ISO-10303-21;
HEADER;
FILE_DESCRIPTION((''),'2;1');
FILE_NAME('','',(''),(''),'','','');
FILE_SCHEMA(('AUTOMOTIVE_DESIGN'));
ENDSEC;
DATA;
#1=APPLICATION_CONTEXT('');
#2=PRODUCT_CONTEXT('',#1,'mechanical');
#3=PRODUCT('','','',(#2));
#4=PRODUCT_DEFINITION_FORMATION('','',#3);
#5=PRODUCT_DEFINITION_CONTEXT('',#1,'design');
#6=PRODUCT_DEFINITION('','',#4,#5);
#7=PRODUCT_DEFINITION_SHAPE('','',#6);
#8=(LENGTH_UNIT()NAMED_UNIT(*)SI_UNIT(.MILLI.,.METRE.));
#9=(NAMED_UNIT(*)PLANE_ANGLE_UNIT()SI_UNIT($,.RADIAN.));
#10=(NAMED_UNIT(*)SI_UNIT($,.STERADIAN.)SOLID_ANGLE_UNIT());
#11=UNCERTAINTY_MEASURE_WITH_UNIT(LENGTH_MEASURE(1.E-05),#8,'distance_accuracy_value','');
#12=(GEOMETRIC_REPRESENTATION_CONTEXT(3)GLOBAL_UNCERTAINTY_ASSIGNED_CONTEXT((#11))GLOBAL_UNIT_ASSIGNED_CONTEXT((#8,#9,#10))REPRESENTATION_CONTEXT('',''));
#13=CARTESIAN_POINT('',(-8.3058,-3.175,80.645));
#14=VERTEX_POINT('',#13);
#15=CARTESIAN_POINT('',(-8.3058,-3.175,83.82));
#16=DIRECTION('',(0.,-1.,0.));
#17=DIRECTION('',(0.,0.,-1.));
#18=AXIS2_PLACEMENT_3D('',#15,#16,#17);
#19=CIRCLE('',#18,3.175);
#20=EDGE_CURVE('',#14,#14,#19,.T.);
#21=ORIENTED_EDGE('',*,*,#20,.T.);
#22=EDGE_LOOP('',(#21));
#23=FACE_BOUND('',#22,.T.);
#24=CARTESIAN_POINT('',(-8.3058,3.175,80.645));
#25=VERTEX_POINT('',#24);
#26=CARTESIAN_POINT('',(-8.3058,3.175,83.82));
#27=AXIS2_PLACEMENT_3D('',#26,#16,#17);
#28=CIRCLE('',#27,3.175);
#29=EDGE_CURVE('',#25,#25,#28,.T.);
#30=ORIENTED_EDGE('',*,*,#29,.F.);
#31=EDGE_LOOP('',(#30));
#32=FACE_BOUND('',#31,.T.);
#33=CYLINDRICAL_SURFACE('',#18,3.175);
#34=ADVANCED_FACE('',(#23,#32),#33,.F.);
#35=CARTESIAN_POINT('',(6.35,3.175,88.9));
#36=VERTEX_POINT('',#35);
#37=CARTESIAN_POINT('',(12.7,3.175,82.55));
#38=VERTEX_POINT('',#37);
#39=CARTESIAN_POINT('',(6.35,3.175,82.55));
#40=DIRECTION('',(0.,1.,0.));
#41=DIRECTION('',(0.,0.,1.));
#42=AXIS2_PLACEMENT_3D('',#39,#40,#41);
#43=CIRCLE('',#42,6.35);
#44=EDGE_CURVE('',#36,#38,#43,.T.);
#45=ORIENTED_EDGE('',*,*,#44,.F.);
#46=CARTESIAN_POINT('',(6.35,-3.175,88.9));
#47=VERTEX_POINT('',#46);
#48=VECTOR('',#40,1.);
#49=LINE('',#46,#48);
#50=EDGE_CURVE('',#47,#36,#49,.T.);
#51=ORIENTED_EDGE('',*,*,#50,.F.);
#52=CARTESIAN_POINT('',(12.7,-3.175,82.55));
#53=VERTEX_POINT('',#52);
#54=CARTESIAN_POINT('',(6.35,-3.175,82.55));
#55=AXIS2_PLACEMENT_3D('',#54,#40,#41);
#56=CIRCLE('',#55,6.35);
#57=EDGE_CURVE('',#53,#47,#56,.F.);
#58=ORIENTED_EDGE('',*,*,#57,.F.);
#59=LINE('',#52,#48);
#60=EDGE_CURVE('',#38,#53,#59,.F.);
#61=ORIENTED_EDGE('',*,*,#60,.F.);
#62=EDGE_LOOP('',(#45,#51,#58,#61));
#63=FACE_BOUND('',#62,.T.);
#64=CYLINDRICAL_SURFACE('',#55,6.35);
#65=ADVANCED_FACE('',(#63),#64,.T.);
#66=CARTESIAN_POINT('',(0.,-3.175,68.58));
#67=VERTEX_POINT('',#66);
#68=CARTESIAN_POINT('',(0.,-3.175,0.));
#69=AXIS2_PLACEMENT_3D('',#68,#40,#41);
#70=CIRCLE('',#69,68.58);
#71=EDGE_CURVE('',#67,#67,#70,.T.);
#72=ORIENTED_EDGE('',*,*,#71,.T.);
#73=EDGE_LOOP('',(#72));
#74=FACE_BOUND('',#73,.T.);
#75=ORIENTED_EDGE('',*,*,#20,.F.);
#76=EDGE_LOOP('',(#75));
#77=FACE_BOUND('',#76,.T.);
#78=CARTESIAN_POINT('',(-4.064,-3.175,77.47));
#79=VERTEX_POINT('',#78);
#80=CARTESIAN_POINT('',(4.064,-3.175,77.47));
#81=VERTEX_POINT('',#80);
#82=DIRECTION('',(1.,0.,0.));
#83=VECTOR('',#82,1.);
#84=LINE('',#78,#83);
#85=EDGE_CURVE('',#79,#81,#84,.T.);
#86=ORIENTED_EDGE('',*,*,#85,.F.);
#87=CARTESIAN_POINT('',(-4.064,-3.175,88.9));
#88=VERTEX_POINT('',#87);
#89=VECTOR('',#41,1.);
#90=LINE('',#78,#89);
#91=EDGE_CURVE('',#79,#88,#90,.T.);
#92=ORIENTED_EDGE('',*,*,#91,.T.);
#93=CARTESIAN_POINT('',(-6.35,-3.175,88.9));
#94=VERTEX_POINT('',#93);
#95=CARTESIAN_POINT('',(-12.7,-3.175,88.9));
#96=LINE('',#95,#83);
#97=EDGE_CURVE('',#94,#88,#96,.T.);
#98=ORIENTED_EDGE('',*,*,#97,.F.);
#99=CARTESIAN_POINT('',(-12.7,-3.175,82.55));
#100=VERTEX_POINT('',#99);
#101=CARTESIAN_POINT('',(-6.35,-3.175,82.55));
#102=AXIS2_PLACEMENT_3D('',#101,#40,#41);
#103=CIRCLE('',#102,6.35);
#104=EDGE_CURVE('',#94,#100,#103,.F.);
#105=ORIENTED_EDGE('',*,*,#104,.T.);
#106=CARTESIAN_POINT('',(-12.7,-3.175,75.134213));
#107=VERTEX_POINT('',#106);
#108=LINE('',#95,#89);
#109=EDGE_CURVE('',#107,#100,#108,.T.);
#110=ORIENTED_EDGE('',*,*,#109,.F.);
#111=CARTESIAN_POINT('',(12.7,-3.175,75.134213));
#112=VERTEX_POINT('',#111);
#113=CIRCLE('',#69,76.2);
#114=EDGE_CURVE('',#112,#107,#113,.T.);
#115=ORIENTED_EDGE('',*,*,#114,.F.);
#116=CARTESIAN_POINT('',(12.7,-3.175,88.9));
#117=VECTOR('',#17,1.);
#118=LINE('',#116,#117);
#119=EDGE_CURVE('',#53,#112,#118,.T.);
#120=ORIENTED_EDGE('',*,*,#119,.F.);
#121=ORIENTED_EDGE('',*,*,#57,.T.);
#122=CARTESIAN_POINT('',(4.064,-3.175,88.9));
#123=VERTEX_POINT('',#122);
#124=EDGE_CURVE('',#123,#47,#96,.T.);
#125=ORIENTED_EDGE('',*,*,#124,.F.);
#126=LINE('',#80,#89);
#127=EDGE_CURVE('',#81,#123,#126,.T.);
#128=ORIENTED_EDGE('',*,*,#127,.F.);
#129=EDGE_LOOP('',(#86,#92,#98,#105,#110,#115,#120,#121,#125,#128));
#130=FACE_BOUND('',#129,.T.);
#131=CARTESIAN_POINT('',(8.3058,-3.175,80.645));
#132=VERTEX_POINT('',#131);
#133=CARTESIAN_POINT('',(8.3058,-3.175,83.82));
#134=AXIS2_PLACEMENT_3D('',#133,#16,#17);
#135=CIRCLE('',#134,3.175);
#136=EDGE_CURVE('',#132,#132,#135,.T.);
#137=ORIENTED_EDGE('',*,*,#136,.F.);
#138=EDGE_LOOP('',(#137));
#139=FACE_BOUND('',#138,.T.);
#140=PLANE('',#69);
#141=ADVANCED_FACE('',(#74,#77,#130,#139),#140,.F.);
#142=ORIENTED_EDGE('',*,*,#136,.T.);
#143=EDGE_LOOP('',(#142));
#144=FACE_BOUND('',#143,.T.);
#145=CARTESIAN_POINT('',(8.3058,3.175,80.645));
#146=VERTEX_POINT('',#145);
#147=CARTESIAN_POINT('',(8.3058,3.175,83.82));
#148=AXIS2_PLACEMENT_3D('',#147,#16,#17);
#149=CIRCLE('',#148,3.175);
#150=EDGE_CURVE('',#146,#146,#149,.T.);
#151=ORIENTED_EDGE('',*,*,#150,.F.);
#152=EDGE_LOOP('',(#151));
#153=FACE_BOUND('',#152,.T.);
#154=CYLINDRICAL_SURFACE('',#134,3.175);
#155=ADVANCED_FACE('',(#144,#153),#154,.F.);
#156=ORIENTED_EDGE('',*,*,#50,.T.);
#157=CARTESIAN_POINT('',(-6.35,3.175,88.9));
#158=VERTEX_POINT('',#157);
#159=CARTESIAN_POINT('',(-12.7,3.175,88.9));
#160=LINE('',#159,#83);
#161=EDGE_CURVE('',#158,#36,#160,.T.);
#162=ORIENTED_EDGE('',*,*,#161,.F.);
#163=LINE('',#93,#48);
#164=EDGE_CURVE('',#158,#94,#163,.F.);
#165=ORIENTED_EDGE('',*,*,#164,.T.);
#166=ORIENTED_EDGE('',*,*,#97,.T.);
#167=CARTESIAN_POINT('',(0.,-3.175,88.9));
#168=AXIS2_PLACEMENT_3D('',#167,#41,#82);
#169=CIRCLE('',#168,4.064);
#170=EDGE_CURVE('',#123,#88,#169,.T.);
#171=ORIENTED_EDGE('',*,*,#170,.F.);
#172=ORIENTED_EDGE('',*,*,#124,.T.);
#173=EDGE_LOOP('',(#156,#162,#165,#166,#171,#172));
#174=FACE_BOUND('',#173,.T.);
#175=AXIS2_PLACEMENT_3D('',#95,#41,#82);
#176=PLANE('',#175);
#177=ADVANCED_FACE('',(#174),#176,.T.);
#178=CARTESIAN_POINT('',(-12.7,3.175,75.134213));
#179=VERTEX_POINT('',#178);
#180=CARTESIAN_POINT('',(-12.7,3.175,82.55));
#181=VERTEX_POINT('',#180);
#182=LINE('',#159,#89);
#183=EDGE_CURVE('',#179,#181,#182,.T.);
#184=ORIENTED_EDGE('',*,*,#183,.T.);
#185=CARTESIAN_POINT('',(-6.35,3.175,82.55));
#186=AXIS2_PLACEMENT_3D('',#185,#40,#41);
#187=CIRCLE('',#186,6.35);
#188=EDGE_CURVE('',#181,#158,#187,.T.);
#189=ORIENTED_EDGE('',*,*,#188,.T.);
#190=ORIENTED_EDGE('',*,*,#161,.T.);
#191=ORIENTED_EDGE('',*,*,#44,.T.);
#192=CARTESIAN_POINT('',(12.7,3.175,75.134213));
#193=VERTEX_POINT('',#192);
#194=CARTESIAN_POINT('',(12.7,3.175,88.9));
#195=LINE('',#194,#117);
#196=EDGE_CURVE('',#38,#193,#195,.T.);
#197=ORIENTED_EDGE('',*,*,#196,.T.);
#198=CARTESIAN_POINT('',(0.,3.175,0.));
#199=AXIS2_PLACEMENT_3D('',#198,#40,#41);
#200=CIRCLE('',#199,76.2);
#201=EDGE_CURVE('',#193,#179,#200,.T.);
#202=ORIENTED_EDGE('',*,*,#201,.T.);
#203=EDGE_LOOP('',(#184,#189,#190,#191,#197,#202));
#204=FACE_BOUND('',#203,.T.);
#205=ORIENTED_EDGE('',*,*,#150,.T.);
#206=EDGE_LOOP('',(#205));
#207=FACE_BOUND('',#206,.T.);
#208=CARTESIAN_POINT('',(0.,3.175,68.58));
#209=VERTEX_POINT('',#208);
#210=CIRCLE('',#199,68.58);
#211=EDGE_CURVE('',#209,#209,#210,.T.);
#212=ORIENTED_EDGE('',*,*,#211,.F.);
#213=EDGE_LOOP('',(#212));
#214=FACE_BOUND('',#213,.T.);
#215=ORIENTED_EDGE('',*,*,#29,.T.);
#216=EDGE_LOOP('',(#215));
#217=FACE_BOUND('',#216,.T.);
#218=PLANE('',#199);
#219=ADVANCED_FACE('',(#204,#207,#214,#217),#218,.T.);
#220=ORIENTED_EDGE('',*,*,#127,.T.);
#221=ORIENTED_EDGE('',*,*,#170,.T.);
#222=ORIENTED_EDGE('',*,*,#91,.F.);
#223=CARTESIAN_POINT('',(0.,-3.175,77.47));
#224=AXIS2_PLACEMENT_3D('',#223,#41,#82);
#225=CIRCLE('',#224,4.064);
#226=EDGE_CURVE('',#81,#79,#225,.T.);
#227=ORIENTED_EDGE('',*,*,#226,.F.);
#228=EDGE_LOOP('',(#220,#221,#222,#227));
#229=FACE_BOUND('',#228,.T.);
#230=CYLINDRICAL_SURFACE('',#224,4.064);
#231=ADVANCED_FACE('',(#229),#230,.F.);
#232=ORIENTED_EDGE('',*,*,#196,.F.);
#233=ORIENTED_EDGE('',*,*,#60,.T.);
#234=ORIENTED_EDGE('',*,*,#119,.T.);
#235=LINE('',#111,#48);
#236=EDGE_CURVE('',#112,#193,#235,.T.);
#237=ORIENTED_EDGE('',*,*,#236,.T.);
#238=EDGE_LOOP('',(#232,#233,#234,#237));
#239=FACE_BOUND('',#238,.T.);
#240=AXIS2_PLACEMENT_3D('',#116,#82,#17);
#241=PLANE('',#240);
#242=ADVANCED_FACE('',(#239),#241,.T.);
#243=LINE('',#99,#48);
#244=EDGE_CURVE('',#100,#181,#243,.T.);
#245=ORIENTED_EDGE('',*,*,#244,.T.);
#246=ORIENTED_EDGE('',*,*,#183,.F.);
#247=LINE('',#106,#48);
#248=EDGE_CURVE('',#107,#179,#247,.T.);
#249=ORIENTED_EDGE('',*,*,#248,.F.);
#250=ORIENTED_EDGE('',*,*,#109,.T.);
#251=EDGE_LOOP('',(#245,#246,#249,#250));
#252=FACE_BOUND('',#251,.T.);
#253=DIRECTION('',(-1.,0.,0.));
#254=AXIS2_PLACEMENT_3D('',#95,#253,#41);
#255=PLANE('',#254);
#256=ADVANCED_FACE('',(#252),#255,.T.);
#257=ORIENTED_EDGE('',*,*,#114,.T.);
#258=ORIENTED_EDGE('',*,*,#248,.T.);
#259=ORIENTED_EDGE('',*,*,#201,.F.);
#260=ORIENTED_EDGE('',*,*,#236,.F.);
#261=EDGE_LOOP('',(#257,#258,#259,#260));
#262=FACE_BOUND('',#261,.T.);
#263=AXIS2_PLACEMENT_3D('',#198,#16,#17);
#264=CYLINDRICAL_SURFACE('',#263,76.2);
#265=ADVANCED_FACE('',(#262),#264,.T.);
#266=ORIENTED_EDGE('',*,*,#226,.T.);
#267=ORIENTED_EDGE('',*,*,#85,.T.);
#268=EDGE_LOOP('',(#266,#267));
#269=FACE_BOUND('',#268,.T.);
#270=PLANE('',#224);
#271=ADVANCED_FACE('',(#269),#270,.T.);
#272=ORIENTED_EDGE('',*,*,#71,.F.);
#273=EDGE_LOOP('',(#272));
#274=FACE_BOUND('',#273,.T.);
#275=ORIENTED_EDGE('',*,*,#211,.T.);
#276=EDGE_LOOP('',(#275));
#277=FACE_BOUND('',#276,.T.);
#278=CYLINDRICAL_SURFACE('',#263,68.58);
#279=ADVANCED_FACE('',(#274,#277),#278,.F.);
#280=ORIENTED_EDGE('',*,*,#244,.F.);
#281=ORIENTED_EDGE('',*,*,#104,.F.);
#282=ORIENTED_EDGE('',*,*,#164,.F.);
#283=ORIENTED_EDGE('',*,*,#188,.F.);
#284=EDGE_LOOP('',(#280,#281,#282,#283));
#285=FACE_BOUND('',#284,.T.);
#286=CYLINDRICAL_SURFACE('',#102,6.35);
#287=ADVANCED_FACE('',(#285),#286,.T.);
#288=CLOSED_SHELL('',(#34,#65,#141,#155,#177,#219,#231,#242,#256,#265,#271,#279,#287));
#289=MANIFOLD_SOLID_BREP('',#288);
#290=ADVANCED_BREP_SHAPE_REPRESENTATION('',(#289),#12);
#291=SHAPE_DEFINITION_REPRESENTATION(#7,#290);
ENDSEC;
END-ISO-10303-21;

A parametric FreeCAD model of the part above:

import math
import FreeCAD as App
import Part
import Sketcher
Q = App.Units.Quantity


def edges_at(feature, points):
    """Names of the edges that pass closest to the given points."""
    edges = feature.Shape.Edges
    near = lambda p: min(range(len(edges)), key=lambda i: edges[i].distToShape(Part.Vertex(*p))[0])
    return sorted({f"Edge{near(p) + 1}" for p in points})

doc = App.newDocument("Part")
body = doc.addObject("PartDesign::Body", "Body")

# Sketch on XZ plane
sketch1 = body.newObject("Sketcher::SketchObject", "Sketch")
sketch1.AttachmentSupport = (doc.getObject("XZ_Plane"), [""])
sketch1.MapMode = "FlatFace"
sketch1.addGeometry([
    Part.Circle(App.Vector(0, 0, 0), App.Vector(0, 0, 1), 76),
    Part.Circle(App.Vector(0, 0, 0), App.Vector(0, 0, 1), 69),
], False)
sketch1.addConstraint([
    Sketcher.Constraint("Coincident", 0, 3, -1, 1),
    Sketcher.Constraint("Coincident", 1, 3, -1, 1),
    Sketcher.Constraint("Diameter", 0, Q("6 in")),
    Sketcher.Constraint("Diameter", 1, Q("5.4 in")),
])
pad1 = body.newObject("PartDesign::Pad", "Pad")
pad1.Profile = sketch1
pad1.Length = Q("0.25 in")
pad1.Midplane = True

# Sketch on XZ plane
sketch2 = body.newObject("Sketcher::SketchObject", "Sketch001")
sketch2.AttachmentSupport = (doc.getObject("XZ_Plane"), [""])
sketch2.MapMode = "FlatFace"
sketch2.AttachmentOffset = App.Placement(App.Vector(0, 0, -0.125 * 25.4), App.Rotation())
sketch2.addGeometry([
    Part.LineSegment(App.Vector(-13, 75, 0), App.Vector(-13, 89, 0)),
    Part.LineSegment(App.Vector(-13, 89, 0), App.Vector(13, 89, 0)),
    Part.LineSegment(App.Vector(13, 89, 0), App.Vector(13, 75, 0)),
    Part.ArcOfCircle(Part.Circle(App.Vector(0, 0, 0), App.Vector(0, 0, 1), 76), math.radians(80.41), math.radians(99.59)),
], False)
sketch2.addConstraint([
    Sketcher.Constraint("Coincident", 0, 2, 1, 1),
    Sketcher.Constraint("Coincident", 1, 2, 2, 1),
    Sketcher.Constraint("Coincident", 2, 2, 3, 1),
    Sketcher.Constraint("Coincident", 3, 2, 0, 1),
    Sketcher.Constraint("Vertical", 0),
    Sketcher.Constraint("Horizontal", 1),
    Sketcher.Constraint("Vertical", 2),
    Sketcher.Constraint("Coincident", 3, 3, -1, 1),
    Sketcher.Constraint("Horizontal", 2, 2, 3, 2),
    Sketcher.Constraint("Radius", 3, Q("3 in")),
    Sketcher.Constraint("DistanceX", 1, 1, 1, 2, Q("1 in")),
    Sketcher.Constraint("DistanceY", -1, 1, 0, 2, Q("3.5 in")),
])
pad2 = body.newObject("PartDesign::Pad", "Pad001")
pad2.Profile = sketch2
pad2.Length = Q("0.25 in")
doc.recompute()

fillet = body.newObject("PartDesign::Fillet", "Fillet")
fillet.Base = (pad2, edges_at(pad2, [(12.7, 0, 88.9), (-12.7, 0, 88.9)]))
fillet.Radius = Q("0.25 in")

# Sketch on XY plane
sketch3 = body.newObject("Sketcher::SketchObject", "Sketch002")
sketch3.AttachmentSupport = (doc.getObject("XY_Plane"), [""])
sketch3.MapMode = "FlatFace"
sketch3.AttachmentOffset = App.Placement(App.Vector(0, 0, 3.5 * 25.4), App.Rotation())
sketch3.addGeometry([
    Part.LineSegment(App.Vector(-4.1, -3.2, 0), App.Vector(4.1, -3.2, 0)),
    Part.ArcOfCircle(Part.Circle(App.Vector(0, -3.2, 0), App.Vector(0, 0, 1), 4.1), math.radians(0), math.radians(180)),
], False)
sketch3.addConstraint([
    Sketcher.Constraint("Coincident", 0, 1, 1, 2),
    Sketcher.Constraint("Coincident", 1, 1, 0, 2),
    Sketcher.Constraint("Horizontal", 0),
    Sketcher.Constraint("PointOnObject", 1, 3, -2),
    Sketcher.Constraint("Horizontal", 1, 3, 0, 1),
    Sketcher.Constraint("Radius", 1, Q("0.16 in")),
    Sketcher.Constraint("DistanceY", 1, 3, -1, 1, Q("0.125 in")),
])
pocket1 = body.newObject("PartDesign::Pocket", "Pocket")
pocket1.Profile = sketch3
pocket1.Length = Q("0.45 in")

# Sketch on XZ plane
sketch4 = body.newObject("Sketcher::SketchObject", "Sketch003")
sketch4.AttachmentSupport = (doc.getObject("XZ_Plane"), [""])
sketch4.MapMode = "FlatFace"
sketch4.AttachmentOffset = App.Placement(App.Vector(0, 0, 0.125 * 25.4), App.Rotation())
sketch4.addGeometry([
    Part.Circle(App.Vector(-8.3, 83.8, 0), App.Vector(0, 0, 1), 3.2),
    Part.Circle(App.Vector(8.3, 83.8, 0), App.Vector(0, 0, 1), 3.2),
], False)
sketch4.addConstraint([
    Sketcher.Constraint("Equal", 0, 1),
    Sketcher.Constraint("Symmetric", 0, 3, 1, 3, -2),
    Sketcher.Constraint("Diameter", 0, Q("0.25 in")),
    Sketcher.Constraint("DistanceY", -1, 1, 0, 3, Q("3.3 in")),
    Sketcher.Constraint("DistanceX", 0, 3, -1, 1, Q("0.327 in")),
])
doc.recompute()
hole = body.newObject("PartDesign::Hole", "Hole")
hole.Profile = sketch4
hole.ThreadType = "None"
hole.Diameter = Q("0.25 in")
hole.DepthType = "ThroughAll"

doc.recompute()
